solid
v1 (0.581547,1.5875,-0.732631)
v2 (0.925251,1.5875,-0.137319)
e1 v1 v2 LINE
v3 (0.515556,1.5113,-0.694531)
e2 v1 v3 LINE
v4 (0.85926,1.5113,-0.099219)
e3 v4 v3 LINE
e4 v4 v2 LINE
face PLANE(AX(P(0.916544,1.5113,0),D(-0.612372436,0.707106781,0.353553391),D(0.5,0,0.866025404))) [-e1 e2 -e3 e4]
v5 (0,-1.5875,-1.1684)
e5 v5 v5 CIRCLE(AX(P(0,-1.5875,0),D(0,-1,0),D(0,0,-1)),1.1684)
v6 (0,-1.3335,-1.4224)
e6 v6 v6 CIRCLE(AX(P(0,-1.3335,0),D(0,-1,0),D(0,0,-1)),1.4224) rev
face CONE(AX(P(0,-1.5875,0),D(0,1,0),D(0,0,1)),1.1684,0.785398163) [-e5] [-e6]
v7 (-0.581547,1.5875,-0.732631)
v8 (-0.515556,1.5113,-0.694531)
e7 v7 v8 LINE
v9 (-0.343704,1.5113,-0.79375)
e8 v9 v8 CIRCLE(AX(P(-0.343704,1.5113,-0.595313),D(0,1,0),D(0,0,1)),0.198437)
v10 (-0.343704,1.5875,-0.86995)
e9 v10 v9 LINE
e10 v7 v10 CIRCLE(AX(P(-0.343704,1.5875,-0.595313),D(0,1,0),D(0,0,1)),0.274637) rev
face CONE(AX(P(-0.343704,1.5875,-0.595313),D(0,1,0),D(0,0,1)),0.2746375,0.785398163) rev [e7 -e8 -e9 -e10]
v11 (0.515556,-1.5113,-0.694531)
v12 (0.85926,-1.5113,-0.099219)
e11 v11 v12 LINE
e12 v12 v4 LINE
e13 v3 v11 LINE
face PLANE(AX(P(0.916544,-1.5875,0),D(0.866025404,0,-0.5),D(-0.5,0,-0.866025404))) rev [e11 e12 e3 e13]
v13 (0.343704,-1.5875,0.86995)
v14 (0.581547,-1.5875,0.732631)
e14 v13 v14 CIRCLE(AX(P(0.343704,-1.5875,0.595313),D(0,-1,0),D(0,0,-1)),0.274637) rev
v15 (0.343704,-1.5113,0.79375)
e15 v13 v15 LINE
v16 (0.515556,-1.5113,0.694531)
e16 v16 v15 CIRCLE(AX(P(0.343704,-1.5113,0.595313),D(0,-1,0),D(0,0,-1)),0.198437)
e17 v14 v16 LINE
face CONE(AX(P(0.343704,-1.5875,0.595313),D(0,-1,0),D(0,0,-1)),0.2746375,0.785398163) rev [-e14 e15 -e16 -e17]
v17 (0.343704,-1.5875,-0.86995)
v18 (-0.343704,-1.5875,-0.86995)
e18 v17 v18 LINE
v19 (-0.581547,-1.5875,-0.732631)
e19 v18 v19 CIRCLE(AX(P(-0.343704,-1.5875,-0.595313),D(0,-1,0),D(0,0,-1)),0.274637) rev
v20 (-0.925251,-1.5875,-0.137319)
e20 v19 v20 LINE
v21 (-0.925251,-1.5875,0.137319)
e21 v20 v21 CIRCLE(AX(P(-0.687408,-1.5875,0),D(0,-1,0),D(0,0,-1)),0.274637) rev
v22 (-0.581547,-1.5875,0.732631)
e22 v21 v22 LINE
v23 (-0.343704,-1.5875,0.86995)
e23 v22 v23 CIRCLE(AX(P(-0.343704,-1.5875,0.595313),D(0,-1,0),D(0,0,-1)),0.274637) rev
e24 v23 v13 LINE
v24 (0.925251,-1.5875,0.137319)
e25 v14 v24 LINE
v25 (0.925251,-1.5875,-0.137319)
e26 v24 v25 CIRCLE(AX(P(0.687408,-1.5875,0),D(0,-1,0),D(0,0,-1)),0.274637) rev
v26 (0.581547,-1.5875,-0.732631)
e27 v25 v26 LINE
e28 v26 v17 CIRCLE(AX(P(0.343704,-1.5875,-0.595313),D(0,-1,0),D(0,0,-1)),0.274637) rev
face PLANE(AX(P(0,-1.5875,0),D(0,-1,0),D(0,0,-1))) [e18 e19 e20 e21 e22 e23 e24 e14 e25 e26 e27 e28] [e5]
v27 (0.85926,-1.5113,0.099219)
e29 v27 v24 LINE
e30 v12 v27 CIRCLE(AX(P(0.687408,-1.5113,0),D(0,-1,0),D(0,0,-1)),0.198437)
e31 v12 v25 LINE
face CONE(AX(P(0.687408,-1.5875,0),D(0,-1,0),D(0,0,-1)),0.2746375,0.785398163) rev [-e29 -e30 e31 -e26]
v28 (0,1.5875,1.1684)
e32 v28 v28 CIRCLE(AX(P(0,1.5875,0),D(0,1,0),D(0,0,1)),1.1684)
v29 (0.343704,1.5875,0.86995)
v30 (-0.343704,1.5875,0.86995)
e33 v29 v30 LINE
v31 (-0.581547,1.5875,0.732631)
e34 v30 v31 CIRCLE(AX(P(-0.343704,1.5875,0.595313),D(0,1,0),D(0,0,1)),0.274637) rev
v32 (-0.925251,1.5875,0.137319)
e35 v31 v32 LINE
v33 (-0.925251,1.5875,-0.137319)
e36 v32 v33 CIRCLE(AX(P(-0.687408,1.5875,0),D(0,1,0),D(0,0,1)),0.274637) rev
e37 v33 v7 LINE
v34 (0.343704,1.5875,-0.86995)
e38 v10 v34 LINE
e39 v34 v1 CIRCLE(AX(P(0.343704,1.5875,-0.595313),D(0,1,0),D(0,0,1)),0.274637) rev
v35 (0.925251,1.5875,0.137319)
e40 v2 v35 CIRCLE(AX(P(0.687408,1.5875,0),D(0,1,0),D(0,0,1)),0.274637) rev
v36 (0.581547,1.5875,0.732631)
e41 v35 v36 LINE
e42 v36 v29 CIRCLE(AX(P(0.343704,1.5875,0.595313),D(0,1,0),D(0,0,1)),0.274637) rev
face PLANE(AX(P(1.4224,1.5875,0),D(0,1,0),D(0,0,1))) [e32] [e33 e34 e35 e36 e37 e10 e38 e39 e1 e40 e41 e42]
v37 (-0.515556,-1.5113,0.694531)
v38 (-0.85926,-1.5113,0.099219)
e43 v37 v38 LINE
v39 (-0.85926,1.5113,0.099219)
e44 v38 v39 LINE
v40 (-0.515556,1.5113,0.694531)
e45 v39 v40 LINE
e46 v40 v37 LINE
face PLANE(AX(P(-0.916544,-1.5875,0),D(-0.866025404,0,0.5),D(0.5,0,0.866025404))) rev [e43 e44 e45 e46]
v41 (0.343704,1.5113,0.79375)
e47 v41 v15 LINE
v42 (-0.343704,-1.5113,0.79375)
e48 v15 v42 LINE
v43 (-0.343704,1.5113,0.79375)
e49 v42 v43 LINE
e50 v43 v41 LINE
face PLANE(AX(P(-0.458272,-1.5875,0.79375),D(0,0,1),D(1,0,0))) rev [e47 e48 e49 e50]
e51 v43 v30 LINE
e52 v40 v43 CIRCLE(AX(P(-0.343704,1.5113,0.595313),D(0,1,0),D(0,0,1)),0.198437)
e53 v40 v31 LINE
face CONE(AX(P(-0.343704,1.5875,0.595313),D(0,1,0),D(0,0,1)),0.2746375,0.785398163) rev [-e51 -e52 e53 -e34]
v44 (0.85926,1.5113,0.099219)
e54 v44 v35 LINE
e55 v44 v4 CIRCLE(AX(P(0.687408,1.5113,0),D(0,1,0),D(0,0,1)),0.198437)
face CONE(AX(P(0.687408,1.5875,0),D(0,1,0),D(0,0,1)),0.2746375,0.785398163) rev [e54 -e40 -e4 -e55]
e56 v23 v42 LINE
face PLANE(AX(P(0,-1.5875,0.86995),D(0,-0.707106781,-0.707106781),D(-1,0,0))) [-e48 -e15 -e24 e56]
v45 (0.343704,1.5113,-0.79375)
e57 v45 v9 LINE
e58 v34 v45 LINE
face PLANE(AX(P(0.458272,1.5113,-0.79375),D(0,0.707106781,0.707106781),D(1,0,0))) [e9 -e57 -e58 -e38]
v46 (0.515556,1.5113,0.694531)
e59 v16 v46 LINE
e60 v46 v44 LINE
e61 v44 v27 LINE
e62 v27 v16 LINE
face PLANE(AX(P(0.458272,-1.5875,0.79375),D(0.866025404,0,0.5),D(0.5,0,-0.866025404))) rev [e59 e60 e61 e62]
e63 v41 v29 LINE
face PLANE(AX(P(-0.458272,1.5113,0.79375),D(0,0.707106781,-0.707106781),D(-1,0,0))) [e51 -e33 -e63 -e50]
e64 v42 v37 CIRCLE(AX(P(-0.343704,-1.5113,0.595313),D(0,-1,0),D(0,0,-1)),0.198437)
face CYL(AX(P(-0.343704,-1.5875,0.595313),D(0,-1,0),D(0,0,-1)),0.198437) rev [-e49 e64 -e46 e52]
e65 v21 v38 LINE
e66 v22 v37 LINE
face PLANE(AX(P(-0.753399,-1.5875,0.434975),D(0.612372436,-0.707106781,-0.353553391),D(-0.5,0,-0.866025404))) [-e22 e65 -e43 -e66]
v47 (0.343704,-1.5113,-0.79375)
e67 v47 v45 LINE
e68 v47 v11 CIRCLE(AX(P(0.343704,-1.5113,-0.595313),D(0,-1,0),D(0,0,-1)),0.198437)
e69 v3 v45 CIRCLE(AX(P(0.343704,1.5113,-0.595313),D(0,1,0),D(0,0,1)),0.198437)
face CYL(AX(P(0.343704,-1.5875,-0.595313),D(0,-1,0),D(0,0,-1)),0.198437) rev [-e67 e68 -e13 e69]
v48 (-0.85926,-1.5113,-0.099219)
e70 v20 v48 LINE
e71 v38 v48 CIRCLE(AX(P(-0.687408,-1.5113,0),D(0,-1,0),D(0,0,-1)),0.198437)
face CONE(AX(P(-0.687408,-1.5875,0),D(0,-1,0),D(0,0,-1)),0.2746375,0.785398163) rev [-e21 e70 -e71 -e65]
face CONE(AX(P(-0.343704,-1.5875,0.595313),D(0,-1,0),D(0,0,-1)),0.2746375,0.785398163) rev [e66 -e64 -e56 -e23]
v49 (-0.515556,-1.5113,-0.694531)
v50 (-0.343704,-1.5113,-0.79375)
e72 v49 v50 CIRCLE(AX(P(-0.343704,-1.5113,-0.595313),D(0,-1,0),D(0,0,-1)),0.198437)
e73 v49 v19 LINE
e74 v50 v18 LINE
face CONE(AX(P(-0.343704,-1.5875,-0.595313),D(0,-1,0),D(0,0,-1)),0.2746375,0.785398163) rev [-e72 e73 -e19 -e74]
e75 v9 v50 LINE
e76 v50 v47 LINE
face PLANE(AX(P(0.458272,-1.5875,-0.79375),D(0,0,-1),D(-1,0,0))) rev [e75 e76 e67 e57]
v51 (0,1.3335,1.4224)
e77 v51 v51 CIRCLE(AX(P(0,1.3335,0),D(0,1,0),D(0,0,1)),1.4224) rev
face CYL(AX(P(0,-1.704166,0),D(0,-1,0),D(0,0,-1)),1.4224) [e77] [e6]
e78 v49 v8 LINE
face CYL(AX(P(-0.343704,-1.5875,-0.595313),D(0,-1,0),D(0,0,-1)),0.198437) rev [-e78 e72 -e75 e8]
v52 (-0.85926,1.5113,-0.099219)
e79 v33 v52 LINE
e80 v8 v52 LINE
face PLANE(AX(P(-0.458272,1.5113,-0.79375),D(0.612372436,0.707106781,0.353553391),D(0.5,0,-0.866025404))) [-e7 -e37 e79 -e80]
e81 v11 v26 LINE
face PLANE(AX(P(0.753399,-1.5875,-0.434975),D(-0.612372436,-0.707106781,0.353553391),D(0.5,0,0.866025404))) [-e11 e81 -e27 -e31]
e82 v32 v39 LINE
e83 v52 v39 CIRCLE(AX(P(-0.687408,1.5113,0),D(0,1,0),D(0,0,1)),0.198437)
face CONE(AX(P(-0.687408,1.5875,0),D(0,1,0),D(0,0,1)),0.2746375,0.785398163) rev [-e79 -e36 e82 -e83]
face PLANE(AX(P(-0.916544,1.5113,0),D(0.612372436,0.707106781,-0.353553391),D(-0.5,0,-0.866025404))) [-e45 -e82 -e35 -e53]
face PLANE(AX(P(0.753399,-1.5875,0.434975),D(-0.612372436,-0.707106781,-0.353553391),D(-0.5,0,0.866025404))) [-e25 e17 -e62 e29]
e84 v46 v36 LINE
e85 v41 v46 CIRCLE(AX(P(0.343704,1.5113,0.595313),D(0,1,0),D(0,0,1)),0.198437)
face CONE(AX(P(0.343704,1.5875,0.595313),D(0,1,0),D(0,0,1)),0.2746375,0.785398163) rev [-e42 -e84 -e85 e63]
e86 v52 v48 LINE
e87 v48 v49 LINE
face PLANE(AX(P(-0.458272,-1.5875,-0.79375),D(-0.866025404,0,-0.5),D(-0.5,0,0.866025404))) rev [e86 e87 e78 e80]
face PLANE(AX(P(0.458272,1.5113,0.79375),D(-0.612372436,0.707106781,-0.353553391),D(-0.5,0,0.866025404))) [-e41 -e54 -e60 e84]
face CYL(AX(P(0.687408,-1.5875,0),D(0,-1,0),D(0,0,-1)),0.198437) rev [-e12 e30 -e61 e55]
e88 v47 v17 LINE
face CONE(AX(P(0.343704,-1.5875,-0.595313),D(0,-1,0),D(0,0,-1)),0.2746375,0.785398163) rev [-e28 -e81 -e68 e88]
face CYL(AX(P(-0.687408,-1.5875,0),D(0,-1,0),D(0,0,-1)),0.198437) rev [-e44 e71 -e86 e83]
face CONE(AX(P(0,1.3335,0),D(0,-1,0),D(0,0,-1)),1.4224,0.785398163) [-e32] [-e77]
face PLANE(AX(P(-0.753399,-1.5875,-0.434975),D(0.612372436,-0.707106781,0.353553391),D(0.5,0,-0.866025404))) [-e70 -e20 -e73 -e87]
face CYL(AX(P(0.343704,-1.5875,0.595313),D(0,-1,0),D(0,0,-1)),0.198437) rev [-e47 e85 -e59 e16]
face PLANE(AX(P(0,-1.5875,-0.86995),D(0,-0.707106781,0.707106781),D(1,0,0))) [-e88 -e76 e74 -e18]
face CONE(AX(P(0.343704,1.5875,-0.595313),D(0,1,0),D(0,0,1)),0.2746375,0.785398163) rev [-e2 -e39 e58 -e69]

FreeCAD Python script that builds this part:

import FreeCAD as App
import Part
import Sketcher
from FreeCAD import Vector
Q = App.Units.Quantity


def edges_at(feature, points):
    """Names of the edges that pass closest to the given points."""
    edges = feature.Shape.Edges
    near = lambda p: min(range(len(edges)), key=lambda i: edges[i].distToShape(Part.Vertex(*p))[0])
    return sorted({f"Edge{near(p) + 1}" for p in points})


def add_polygon(sketch, points):
    """Adds a closed chain of lines whose ends are joined by coincident constraints."""
    first, n = sketch.GeometryCount, len(points)
    for a, b in zip(points, points[1:] + points[:1]):
        sketch.addGeometry(Part.LineSegment(App.Vector(*a, 0), App.Vector(*b, 0)), False)
    for i in range(n):
        sketch.addConstraint(Sketcher.Constraint("Coincident", first + i, 2, first + (i + 1) % n, 1))

doc = App.newDocument("Part")
body = doc.addObject("PartDesign::Body", "Body")

# Sketch on XY plane
sketch1 = body.newObject("Sketcher::SketchObject", "Sketch")
sketch1.AttachmentSupport = (doc.getObject("XY_Plane"), [""])
sketch1.MapMode = "FlatFace"
add_polygon(sketch1, [(0, 1.6), (0, -1.6), (1.4, -1.6), (1.4, 1.6)])  # lines 0-3
sketch1.addConstraint([
    Sketcher.Constraint("Vertical", 0),
    Sketcher.Constraint("Horizontal", 1),
    Sketcher.Constraint("Vertical", 2),
    Sketcher.Constraint("Horizontal", 3),
    Sketcher.Constraint("Symmetric", 0, 2, 3, 2, -1, 1),
    Sketcher.Constraint("DistanceX", 1, 1, 1, 2, Q("0.056 in")),
    Sketcher.Constraint("DistanceY", 0, 2, 0, 1, Q("0.125 in")),
])
revolution = body.newObject("PartDesign::Revolution", "Revolution")
revolution.Profile = sketch1
revolution.ReferenceAxis = (sketch1, ["V_Axis"])
revolution.Angle = 360

# Sketch on XZ plane
sketch2 = body.newObject("Sketcher::SketchObject", "Sketch001")
sketch2.AttachmentSupport = (doc.getObject("XZ_Plane"), [""])
sketch2.MapMode = "FlatFace"
add_polygon(sketch2, [(0.9, 0), (0.5, -0.8), (-0.5, -0.8), (-0.9, 0), (-0.5, 0.8), (0.5, 0.8)])  # lines 0-5
sketch2.addConstraint([
    Sketcher.Constraint("Horizontal", 1),
    Sketcher.Constraint("Horizontal", 4),
    Sketcher.Constraint("Symmetric", 0, 2, 3, 2, -1, 1),
    Sketcher.Constraint("Symmetric", 2, 2, 5, 2, -1, 1),
    Sketcher.Constraint("PointOnObject", 2, 2, -1),
    Sketcher.Constraint("Parallel", 2, 5),
    Sketcher.Constraint("Vertical", 1, 2, 3, 2),
    Sketcher.Constraint("Angle", 0, Q("-120 deg")),
    Sketcher.Constraint("DistanceY", 0, 2, -1, 1, Q("0.03125 in")),
    Sketcher.Constraint("DistanceX", 1, 2, 1, 1, 0.916544),
])
pocket1 = body.newObject("PartDesign::Pocket", "Pocket")
pocket1.Profile = sketch2
pocket1.Type = "ThroughAll"
pocket1.Midplane = True
doc.recompute()

fillet = body.newObject("PartDesign::Fillet", "Fillet")
fillet.Base = (pocket1, edges_at(pocket1, [
    (0.458, 0, -0.794),
    (0.917, 0, 0),
    (0.458, 0, 0.794),
    (-0.458, 0, 0.794),
    (-0.917, 0, 0),
    (-0.458, 0, -0.794),
]))
fillet.Radius = 0.198437
doc.recompute()

chamfer = body.newObject("PartDesign::Chamfer", "Chamfer")
chamfer.Base = (fillet, edges_at(fillet, [(-1.422, 1.587, 0), (-1.422, -1.587, 0)]))
chamfer.Size = Q("0.01 in")
doc.recompute()

chamfer2 = body.newObject("PartDesign::Chamfer", "Chamfer001")
chamfer2.Base = (chamfer, edges_at(chamfer, [
    (0.687, -1.587, -0.397),
    (0.687, 1.587, -0.397),
    (0.687, -1.587, 0.397),
    (0.687, 1.587, 0.397),
    (0, -1.587, 0.794),
    (0, 1.587, 0.794),
    (-0.687, -1.587, 0.397),
    (-0.687, 1.587, 0.397),
    (-0.687, -1.587, -0.397),
    (-0.687, 1.587, -0.397),
    (0, -1.587, -0.794),
    (0, 1.587, -0.794),
    (0.886, 1.587, 0),
    (0.886, -1.587, 0),
    (0.443, 1.587, 0.767),
    (0.443, -1.587, 0.767),
    (-0.443, 1.587, 0.767),
    (-0.443, -1.587, 0.767),
    (-0.886, 1.587, 0),
    (-0.886, -1.587, 0),
    (-0.443, 1.587, -0.767),
    (-0.443, -1.587, -0.767),
    (0.443, 1.587, -0.767),
    (0.443, -1.587, -0.767),
]))
chamfer2.Size = Q("0.003 in")

doc.recompute()
